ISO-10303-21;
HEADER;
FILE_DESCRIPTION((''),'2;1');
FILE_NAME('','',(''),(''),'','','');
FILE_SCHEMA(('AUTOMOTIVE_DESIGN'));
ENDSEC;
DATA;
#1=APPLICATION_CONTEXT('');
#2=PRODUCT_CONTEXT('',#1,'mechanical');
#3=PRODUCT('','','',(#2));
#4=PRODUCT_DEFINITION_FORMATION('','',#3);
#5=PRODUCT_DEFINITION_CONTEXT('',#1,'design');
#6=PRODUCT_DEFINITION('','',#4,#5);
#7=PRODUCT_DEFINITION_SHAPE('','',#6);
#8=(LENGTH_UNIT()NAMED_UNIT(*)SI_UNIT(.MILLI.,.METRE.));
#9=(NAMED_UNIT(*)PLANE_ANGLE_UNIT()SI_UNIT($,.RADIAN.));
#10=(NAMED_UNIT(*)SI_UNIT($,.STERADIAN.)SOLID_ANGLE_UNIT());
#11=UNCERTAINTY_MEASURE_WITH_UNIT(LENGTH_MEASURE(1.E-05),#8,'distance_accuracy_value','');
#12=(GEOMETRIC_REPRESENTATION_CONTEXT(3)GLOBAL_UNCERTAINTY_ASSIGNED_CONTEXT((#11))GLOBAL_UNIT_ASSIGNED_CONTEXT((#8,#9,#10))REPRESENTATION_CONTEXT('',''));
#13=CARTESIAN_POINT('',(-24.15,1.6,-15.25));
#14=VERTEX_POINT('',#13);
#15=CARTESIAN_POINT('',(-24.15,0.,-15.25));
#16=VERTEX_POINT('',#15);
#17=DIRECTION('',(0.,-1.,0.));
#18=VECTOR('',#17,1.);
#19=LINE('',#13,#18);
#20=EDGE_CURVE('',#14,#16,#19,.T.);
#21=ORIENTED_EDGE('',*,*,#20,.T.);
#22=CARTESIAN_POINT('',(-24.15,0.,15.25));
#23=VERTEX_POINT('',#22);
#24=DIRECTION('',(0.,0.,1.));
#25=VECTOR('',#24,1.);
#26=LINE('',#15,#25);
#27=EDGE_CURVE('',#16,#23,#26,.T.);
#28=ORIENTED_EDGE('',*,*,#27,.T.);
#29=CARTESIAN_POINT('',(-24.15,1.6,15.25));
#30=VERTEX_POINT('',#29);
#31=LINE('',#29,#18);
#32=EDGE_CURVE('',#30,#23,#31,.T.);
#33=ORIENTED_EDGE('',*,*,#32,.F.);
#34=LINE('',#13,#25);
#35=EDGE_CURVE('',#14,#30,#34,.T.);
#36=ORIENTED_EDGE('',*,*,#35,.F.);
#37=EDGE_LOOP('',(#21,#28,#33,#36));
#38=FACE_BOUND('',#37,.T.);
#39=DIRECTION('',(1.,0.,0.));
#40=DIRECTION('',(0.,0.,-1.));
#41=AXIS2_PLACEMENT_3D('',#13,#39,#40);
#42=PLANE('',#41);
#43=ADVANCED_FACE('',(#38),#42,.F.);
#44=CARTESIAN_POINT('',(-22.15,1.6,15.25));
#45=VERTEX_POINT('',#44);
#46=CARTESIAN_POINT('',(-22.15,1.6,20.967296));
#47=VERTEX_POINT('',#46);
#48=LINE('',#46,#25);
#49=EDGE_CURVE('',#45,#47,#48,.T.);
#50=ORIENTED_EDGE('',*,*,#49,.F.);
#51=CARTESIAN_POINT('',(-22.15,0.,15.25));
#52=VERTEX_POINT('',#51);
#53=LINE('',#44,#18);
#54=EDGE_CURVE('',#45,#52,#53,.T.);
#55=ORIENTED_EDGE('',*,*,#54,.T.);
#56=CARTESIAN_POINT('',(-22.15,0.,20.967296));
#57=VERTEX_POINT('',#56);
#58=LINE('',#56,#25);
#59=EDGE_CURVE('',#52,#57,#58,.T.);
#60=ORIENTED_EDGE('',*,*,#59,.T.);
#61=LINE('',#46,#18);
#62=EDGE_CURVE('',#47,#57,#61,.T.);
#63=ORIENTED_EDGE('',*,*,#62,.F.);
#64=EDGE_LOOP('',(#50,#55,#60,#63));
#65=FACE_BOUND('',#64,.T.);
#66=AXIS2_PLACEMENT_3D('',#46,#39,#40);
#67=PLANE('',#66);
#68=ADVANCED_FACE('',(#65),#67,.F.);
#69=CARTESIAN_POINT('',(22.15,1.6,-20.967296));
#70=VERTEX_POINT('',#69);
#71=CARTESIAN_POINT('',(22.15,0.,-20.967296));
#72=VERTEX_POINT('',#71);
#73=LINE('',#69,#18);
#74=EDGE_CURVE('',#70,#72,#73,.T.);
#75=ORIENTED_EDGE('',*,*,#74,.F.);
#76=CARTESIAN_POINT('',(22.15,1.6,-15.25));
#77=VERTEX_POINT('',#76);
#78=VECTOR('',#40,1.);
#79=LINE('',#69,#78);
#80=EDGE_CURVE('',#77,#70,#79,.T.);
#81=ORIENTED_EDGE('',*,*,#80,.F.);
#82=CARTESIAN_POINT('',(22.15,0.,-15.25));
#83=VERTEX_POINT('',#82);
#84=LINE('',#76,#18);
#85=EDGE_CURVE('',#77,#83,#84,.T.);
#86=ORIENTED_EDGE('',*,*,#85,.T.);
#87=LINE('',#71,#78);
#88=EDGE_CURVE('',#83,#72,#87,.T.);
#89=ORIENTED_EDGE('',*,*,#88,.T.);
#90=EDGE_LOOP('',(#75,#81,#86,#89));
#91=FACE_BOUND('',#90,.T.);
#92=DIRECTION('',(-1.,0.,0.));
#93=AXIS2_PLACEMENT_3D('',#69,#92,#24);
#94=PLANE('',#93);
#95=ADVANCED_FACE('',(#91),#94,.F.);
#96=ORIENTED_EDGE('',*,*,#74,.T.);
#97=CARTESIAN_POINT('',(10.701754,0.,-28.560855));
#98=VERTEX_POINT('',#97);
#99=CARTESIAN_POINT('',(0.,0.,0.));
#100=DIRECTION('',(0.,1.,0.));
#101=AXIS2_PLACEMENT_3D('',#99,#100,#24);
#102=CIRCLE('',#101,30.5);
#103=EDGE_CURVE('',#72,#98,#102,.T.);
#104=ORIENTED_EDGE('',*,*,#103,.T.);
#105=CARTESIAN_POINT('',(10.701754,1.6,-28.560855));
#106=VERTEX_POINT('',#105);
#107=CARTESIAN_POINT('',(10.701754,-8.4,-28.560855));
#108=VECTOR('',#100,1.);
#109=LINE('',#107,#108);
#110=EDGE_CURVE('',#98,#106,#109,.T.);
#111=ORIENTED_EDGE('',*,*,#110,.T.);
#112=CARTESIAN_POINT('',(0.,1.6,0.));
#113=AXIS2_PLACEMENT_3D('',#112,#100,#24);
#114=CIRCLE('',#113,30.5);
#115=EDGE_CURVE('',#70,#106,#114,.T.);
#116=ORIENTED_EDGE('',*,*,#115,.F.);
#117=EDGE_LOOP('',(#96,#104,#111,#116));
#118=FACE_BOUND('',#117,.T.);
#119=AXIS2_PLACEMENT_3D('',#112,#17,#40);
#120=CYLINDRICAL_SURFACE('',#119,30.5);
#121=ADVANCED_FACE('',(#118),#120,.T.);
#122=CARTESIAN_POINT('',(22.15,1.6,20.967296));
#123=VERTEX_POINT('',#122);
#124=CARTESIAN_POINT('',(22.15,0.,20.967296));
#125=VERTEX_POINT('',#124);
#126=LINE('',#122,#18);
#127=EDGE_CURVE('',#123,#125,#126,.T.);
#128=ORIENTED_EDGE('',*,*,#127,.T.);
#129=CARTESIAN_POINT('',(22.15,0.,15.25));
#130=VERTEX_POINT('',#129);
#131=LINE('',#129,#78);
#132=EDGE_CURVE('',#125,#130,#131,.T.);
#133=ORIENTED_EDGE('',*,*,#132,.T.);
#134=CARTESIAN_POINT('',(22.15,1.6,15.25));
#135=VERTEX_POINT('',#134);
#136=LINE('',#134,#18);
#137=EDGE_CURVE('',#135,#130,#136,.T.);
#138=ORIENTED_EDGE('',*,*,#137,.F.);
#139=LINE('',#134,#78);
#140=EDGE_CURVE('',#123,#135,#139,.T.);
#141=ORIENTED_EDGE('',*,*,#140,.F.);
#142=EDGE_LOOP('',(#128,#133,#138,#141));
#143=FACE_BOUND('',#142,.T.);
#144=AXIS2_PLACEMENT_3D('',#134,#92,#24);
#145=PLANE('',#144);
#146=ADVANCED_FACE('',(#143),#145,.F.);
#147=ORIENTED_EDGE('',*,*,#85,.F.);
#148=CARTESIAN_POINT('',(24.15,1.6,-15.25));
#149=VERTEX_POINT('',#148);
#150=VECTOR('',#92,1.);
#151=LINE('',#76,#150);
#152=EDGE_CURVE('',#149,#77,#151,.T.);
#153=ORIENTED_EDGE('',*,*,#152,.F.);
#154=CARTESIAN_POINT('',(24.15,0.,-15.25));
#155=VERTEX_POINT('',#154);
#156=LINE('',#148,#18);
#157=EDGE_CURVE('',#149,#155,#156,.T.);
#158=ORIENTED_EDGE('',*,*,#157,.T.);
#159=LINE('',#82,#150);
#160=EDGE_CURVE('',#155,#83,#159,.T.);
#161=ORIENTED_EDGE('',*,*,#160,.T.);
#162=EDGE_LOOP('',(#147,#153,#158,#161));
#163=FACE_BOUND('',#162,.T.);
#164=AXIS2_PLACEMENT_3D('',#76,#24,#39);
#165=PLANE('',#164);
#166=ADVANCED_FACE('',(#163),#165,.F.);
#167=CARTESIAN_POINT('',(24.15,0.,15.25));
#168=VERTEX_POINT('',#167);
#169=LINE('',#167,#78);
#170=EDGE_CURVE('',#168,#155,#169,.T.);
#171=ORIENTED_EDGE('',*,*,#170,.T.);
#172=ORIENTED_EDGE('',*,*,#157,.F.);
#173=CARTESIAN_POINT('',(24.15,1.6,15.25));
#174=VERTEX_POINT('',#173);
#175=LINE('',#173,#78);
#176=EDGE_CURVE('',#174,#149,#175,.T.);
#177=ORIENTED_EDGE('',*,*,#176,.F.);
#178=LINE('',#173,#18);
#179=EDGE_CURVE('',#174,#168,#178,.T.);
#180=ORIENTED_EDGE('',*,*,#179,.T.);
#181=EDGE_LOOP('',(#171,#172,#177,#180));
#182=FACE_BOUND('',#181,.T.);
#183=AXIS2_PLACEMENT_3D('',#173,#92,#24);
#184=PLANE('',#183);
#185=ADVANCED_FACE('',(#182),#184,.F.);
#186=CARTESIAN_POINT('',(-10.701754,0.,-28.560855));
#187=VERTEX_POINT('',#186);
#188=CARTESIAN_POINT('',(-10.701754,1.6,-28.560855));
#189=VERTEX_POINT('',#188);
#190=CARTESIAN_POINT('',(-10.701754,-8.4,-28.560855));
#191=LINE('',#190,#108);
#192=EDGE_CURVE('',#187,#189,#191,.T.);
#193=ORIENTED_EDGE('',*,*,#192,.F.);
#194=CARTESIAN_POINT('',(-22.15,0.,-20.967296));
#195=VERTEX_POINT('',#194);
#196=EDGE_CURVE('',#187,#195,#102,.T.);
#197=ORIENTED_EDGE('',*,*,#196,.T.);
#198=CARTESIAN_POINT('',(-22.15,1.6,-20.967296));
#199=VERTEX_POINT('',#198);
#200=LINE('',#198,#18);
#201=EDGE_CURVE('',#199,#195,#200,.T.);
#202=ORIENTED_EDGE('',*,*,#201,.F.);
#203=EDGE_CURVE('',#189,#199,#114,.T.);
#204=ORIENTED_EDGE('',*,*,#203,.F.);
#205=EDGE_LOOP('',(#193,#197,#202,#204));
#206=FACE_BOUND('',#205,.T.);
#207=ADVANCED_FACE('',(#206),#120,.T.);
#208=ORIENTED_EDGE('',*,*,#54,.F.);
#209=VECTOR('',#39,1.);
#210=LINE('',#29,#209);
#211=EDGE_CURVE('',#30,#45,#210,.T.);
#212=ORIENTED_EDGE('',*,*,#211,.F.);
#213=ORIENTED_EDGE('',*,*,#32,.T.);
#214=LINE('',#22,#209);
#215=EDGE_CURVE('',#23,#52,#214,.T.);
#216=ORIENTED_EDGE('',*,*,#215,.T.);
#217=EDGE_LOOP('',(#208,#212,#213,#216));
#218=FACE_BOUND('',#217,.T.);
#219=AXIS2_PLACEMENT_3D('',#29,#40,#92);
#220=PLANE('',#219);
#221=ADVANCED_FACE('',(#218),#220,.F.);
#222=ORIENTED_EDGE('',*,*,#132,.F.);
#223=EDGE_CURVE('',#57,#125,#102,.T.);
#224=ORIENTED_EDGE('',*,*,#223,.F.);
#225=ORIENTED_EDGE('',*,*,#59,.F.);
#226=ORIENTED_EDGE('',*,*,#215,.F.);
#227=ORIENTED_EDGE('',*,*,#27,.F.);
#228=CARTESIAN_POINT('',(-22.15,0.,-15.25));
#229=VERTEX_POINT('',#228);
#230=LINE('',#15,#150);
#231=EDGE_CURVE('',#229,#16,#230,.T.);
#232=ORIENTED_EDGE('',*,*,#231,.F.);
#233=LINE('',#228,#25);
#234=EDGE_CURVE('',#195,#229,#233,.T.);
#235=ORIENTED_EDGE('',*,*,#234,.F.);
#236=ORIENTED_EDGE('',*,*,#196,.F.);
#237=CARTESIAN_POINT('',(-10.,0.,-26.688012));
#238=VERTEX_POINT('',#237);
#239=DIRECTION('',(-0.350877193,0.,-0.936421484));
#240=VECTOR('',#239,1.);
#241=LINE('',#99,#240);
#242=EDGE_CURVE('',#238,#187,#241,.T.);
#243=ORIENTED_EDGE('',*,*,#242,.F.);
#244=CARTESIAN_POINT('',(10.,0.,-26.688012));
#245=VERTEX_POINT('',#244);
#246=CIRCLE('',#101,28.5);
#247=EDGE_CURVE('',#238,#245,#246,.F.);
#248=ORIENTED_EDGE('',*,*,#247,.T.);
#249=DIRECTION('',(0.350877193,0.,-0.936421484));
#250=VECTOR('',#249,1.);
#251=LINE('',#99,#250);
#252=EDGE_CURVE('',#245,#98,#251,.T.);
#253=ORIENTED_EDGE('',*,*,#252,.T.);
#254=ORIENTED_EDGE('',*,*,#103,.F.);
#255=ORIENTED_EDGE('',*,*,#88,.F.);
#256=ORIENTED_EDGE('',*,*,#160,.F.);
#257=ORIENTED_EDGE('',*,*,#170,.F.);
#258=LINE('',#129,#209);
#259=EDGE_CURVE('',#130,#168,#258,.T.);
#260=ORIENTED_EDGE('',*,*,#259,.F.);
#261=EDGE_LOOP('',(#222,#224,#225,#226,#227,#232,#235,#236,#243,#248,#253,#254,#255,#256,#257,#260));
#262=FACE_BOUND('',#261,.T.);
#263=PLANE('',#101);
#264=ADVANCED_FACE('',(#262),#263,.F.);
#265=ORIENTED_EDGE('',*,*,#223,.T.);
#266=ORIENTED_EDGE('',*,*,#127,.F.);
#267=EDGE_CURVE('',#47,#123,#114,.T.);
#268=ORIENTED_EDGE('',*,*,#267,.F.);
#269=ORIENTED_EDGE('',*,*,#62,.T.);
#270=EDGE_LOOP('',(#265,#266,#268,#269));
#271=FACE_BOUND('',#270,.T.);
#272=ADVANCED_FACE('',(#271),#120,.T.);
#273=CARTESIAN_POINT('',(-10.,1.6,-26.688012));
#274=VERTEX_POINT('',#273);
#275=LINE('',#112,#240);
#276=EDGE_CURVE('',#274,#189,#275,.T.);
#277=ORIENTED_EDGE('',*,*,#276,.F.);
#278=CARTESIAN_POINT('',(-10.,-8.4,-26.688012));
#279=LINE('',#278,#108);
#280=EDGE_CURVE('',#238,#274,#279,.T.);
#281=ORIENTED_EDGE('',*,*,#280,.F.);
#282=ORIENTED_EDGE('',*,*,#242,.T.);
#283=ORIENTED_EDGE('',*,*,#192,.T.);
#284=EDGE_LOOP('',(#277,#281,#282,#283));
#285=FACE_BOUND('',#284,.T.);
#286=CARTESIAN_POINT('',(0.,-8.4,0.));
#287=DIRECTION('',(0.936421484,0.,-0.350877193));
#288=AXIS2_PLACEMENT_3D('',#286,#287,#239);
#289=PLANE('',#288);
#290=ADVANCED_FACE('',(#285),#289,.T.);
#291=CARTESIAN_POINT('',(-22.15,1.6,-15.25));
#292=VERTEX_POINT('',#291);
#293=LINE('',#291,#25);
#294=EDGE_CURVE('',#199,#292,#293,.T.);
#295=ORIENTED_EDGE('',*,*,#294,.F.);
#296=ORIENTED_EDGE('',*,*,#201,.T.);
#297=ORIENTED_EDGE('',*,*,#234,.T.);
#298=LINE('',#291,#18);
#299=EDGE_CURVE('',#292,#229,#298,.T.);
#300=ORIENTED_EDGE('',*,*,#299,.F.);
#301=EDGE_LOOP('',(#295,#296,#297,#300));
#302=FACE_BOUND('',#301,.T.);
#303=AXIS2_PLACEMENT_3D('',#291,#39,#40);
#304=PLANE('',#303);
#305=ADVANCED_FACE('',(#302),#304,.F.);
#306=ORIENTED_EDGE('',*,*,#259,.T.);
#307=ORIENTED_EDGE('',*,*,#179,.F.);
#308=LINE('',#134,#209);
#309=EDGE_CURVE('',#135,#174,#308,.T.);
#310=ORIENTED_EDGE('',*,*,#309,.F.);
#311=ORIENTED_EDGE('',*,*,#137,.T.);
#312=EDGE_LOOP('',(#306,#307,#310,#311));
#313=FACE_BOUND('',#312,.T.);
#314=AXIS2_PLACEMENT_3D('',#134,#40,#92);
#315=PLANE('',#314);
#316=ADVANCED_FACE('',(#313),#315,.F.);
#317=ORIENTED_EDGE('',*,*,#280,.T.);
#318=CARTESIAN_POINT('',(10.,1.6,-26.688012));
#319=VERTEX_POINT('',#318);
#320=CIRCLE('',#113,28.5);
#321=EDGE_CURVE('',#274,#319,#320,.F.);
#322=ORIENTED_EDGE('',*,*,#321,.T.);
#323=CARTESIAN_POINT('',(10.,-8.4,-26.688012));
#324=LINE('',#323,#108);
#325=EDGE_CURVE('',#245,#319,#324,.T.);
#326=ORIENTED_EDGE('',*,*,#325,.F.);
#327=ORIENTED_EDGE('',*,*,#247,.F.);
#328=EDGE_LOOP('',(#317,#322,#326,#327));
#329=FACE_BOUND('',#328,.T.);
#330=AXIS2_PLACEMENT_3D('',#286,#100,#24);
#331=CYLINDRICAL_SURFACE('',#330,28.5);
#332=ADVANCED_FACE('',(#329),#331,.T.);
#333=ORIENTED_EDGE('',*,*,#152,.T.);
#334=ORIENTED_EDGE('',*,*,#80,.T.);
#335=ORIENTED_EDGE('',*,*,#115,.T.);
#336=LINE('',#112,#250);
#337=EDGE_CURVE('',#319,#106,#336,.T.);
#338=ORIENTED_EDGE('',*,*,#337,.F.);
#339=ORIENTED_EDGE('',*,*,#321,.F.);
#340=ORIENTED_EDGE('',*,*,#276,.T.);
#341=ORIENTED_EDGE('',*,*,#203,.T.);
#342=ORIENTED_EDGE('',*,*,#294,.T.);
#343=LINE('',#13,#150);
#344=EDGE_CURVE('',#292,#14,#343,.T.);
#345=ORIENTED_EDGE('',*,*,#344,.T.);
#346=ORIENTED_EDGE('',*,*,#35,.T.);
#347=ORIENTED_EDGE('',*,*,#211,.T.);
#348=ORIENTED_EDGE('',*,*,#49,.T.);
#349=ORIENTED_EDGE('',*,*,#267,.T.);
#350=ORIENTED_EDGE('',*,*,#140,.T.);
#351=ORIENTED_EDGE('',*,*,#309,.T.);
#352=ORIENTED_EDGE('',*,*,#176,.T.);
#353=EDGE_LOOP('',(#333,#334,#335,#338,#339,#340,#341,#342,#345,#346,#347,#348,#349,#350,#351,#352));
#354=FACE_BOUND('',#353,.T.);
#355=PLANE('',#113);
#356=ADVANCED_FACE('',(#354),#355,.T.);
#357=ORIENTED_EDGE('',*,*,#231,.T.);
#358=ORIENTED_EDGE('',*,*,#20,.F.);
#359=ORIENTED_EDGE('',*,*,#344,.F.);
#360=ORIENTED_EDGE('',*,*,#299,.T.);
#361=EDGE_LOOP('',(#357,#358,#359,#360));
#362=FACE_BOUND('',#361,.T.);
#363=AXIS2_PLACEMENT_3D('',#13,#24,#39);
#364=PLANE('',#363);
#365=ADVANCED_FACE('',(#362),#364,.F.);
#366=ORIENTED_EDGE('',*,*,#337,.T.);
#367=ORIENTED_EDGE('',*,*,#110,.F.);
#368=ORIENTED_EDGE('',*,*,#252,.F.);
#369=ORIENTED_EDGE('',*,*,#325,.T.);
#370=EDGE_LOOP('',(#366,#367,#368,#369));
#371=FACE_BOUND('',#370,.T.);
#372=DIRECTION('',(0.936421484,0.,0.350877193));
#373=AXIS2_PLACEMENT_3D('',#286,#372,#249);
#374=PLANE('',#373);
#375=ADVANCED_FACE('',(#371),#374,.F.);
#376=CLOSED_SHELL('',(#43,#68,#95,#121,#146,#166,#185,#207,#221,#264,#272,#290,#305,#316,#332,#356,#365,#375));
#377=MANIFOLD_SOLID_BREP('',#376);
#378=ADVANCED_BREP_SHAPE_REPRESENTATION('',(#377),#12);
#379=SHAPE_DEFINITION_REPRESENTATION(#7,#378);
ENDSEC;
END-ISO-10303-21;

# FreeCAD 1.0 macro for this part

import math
import FreeCAD as App
import Part
import Sketcher

V = App.Vector

doc = App.newDocument("Part")
body = doc.addObject("PartDesign::Body", "Body")

sketch1 = body.newObject("Sketcher::SketchObject", "Sketch")
sketch1.AttachmentSupport = (doc.getObject("XZ_Plane"), [""])
sketch1.MapMode = "FlatFace"
sketch1.addGeometry([
    Part.LineSegment(V(-24.15, -15.25, 0), V(-24.15, 15.25, 0)),
    Part.LineSegment(V(-24.15, 15.25, 0), V(-22.15, 15.25, 0)),
    Part.LineSegment(V(-22.15, 15.25, 0), V(-22.15, 20.967296, 0)),
    Part.ArcOfCircle(Part.Circle(V(0, 0, 0), V(0, 0, 1), 30.5), math.radians(43.428775), math.radians(136.571225)),
    Part.LineSegment(V(22.15, 20.967296, 0), V(22.15, 15.25, 0)),
    Part.LineSegment(V(22.15, 15.25, 0), V(24.15, 15.25, 0)),
    Part.LineSegment(V(24.15, 15.25, 0), V(24.15, -15.25, 0)),
    Part.LineSegment(V(24.15, -15.25, 0), V(22.15, -15.25, 0)),
    Part.LineSegment(V(22.15, -15.25, 0), V(22.15, -20.967296, 0)),
    Part.ArcOfCircle(Part.Circle(V(0, 0, 0), V(0, 0, 1), 30.5), math.radians(-136.571225), math.radians(-43.428775)),
    Part.LineSegment(V(-22.15, -20.967296, 0), V(-22.15, -15.25, 0)),
    Part.LineSegment(V(-22.15, -15.25, 0), V(-24.15, -15.25, 0)),
], False)
sketch1.addConstraint([
    Sketcher.Constraint("Coincident", 0, 2, 1, 1),
    Sketcher.Constraint("Coincident", 1, 2, 2, 1),
    Sketcher.Constraint("Coincident", 2, 2, 3, 2),
    Sketcher.Constraint("Coincident", 3, 1, 4, 1),
    Sketcher.Constraint("Coincident", 4, 2, 5, 1),
    Sketcher.Constraint("Coincident", 5, 2, 6, 1),
    Sketcher.Constraint("Coincident", 6, 2, 7, 1),
    Sketcher.Constraint("Coincident", 7, 2, 8, 1),
    Sketcher.Constraint("Coincident", 8, 2, 9, 2),
    Sketcher.Constraint("Coincident", 9, 1, 10, 1),
    Sketcher.Constraint("Coincident", 10, 2, 11, 1),
    Sketcher.Constraint("Coincident", 11, 2, 0, 1),
    Sketcher.Constraint("Vertical", 0),
    Sketcher.Constraint("Horizontal", 1),
    Sketcher.Constraint("Vertical", 2),
    Sketcher.Constraint("Vertical", 4),
    Sketcher.Constraint("Horizontal", 5),
    Sketcher.Constraint("Vertical", 6),
    Sketcher.Constraint("Horizontal", 7),
    Sketcher.Constraint("Vertical", 8),
    Sketcher.Constraint("Vertical", 10),
    Sketcher.Constraint("Horizontal", 11),
    Sketcher.Constraint("Coincident", 3, 3, -1, 1),
    Sketcher.Constraint("Coincident", 9, 3, -1, 1),
    Sketcher.Constraint("Equal", 3, 9),
    Sketcher.Constraint("Symmetric", 0, 2, 6, 2, -1, 1),
    Sketcher.Constraint("Symmetric", 4, 2, 10, 2, -1, 1),
    Sketcher.Constraint("Symmetric", 1, 2, 4, 2, -2),
    Sketcher.Constraint("Horizontal", 8, 2, 9, 1),
    Sketcher.Constraint("Radius", 3, 30.5),
    Sketcher.Constraint("DistanceX", 1, 1, 1, 2, 2.0),
    Sketcher.Constraint("DistanceY", 0, 1, 0, 2, 30.5),
    Sketcher.Constraint("DistanceX", 2, 2, 3, 1, 44.3),
])
pad1 = body.newObject("PartDesign::Pad", "Pad")
pad1.Profile = sketch1
pad1.Length = 1.6
pad1.Reversed = True

sketch2 = body.newObject("Sketcher::SketchObject", "Sketch001")
sketch2.AttachmentSupport = (doc.getObject("XZ_Plane"), [""])
sketch2.MapMode = "FlatFace"
sketch2.AttachmentOffset = App.Placement(V(0, 0, -1.6), App.Rotation())
sketch2.addGeometry([
    Part.ArcOfCircle(Part.Circle(V(0, 0, 0), V(0, 0, 1), 28.5), math.radians(-110.540978), math.radians(-69.459022)),
    Part.LineSegment(V(10, -26.688012, 0), V(10.701754, -28.560855, 0)),
    Part.ArcOfCircle(Part.Circle(V(0, 0, 0), V(0, 0, 1), 30.5), math.radians(-110.540978), math.radians(-69.459022)),
    Part.LineSegment(V(-10.701754, -28.560855, 0), V(-10, -26.688012, 0)),
], False)
sketch2.addConstraint([
    Sketcher.Constraint("Coincident", 0, 2, 1, 1),
    Sketcher.Constraint("Coincident", 1, 2, 2, 2),
    Sketcher.Constraint("Coincident", 2, 1, 3, 1),
    Sketcher.Constraint("Coincident", 3, 2, 0, 1),
    Sketcher.Constraint("Coincident", 0, 3, -1, 1),
    Sketcher.Constraint("Coincident", 2, 3, -1, 1),
    Sketcher.Constraint("Horizontal", 1, 2, 2, 1),
    Sketcher.Constraint("Horizontal", 0, 2, 3, 2),
    Sketcher.Constraint("Radius", 0, 28.5),
    Sketcher.Constraint("Radius", 2, 30.5),
    Sketcher.Constraint("DistanceX", -1, 1, 0, 2, 10.0),
    Sketcher.Constraint("DistanceX", 2, 1, 1, 2, 21.403509),
])
pocket1 = body.newObject("PartDesign::Pocket", "Pocket")
pocket1.Profile = sketch2
pocket1.Length = 10
pocket1.Reversed = True

doc.recompute()
